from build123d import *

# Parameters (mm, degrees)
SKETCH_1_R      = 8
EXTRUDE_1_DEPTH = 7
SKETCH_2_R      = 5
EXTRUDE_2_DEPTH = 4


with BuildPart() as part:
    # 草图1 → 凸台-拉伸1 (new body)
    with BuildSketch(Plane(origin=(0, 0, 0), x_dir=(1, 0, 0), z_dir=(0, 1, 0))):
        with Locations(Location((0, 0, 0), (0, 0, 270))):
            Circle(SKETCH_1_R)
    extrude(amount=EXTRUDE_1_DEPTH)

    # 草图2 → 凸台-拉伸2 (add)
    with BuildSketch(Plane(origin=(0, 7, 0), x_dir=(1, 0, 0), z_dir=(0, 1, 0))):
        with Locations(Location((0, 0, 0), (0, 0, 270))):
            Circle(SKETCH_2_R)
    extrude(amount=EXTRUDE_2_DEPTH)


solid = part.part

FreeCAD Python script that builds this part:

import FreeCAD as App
import Part
import Sketcher
Q = App.Units.Quantity

doc = App.newDocument("Part")
body = doc.addObject("PartDesign::Body", "Body")

# Sketch on XZ plane
sketch1 = body.newObject("Sketcher::SketchObject", "Sketch")
sketch1.AttachmentSupport = (doc.getObject("XZ_Plane"), [""])
sketch1.MapMode = "FlatFace"
sketch1.addGeometry(Part.Circle(App.Vector(0, 0, 0), App.Vector(0, 0, 1), 8), False)
sketch1.addConstraint(Sketcher.Constraint("Coincident", 0, 3, -1, 1))
sketch1.addConstraint(Sketcher.Constraint("Diameter", 0, Q("16 mm")))
pad1 = body.newObject("PartDesign::Pad", "Pad")
pad1.Profile = sketch1
pad1.Length = 7
pad1.Reversed = True

# Sketch on XZ plane
sketch2 = body.newObject("Sketcher::SketchObject", "Sketch001")
sketch2.AttachmentSupport = (doc.getObject("XZ_Plane"), [""])
sketch2.MapMode = "FlatFace"
sketch2.AttachmentOffset = App.Placement(App.Vector(0, 0, -7), App.Rotation())
sketch2.addGeometry(Part.Circle(App.Vector(0, 0, 0), App.Vector(0, 0, 1), 5), False)
sketch2.addConstraint(Sketcher.Constraint("Coincident", 0, 3, -1, 1))
sketch2.addConstraint(Sketcher.Constraint("Diameter", 0, Q("10 mm")))
pad2 = body.newObject("PartDesign::Pad", "Pad001")
pad2.Profile = sketch2
pad2.Length = 4
pad2.Reversed = True

doc.recompute()
